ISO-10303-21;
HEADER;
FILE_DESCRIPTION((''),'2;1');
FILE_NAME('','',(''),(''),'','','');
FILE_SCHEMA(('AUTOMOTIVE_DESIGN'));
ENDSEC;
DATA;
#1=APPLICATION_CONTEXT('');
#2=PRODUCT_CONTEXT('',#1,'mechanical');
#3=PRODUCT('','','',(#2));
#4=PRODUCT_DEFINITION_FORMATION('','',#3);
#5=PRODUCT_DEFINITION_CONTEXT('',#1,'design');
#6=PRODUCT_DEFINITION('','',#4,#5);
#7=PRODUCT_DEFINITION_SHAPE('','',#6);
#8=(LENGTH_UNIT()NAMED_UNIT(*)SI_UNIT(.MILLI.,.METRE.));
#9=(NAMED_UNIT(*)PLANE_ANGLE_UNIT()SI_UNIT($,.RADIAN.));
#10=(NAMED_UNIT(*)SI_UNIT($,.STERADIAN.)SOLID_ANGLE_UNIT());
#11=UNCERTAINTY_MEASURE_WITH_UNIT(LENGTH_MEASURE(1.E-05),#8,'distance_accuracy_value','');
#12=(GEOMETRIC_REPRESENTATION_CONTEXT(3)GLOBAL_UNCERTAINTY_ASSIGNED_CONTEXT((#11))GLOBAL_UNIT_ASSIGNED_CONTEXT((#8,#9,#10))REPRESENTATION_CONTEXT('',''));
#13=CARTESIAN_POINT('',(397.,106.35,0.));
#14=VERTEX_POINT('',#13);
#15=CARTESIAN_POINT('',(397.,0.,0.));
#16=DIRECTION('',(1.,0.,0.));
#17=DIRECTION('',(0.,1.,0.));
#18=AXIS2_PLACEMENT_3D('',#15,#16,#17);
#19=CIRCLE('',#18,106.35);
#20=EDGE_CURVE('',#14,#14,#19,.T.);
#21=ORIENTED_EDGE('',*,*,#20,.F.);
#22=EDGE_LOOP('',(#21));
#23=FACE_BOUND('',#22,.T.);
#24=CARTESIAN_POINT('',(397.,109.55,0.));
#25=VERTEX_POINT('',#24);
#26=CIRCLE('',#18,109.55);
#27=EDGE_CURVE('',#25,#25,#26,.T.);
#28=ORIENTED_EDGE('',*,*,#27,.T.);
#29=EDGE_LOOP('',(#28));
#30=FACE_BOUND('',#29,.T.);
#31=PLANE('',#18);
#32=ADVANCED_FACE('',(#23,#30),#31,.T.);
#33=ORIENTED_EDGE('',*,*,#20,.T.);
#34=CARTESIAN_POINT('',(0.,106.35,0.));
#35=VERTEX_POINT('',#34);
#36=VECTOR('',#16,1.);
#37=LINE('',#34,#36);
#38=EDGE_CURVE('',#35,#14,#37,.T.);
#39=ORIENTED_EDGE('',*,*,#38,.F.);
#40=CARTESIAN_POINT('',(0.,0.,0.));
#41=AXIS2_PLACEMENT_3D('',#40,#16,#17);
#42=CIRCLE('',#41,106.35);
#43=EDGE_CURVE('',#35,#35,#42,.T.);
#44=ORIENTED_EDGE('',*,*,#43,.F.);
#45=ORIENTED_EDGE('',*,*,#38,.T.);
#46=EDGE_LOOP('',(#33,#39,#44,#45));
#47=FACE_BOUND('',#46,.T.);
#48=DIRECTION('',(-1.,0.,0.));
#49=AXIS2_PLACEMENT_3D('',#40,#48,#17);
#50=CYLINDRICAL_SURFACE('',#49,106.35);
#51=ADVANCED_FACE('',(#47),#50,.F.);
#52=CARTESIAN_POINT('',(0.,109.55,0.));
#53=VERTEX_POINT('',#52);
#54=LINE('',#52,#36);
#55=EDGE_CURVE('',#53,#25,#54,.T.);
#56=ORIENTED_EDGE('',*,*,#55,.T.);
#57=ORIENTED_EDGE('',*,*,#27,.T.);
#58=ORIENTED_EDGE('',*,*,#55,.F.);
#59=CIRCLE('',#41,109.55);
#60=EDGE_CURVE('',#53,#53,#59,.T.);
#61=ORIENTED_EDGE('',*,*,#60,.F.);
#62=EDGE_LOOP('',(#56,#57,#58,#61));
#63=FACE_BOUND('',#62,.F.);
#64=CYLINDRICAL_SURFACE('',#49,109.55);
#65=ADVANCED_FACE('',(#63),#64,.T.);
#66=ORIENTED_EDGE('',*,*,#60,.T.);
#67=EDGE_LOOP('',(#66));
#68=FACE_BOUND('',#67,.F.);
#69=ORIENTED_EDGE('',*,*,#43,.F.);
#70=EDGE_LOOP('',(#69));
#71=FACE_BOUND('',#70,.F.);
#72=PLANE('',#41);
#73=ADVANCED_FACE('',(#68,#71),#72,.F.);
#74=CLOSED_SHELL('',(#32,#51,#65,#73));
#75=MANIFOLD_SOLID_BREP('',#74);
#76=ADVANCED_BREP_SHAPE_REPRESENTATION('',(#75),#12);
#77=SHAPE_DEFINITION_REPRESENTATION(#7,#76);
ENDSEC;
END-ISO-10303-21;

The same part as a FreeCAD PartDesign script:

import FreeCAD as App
import Part
import Sketcher

doc = App.newDocument("Part")
body = doc.addObject("PartDesign::Body", "Body")

# Sketch on YZ plane
sketch1 = doc.addObject("Sketcher::SketchObject", "Sketch")
body.addObject(sketch1)
sketch1.AttachmentSupport = (doc.YZ_Plane, [""])
sketch1.MapMode = "FlatFace"
sketch1.addGeometry(Part.Circle(App.Vector(0, 0, 0), App.Vector(0, 0, 1), 109.55), False)
sketch1.addGeometry(Part.Circle(App.Vector(0, 0, 0), App.Vector(0, 0, 1), 106.35), False)
sketch1.addConstraint(Sketcher.Constraint("Coincident", 0, 3, -1, 1))
sketch1.addConstraint(Sketcher.Constraint("Coincident", 1, 3, -1, 1))
sketch1.addConstraint(Sketcher.Constraint("Diameter", 0, 219.1))
sketch1.addConstraint(Sketcher.Constraint("Diameter", 1, 212.7))
pad1 = doc.addObject("PartDesign::Pad", "Pad")
body.addObject(pad1)
pad1.Profile = sketch1
pad1.Length = 397

doc.recompute()
